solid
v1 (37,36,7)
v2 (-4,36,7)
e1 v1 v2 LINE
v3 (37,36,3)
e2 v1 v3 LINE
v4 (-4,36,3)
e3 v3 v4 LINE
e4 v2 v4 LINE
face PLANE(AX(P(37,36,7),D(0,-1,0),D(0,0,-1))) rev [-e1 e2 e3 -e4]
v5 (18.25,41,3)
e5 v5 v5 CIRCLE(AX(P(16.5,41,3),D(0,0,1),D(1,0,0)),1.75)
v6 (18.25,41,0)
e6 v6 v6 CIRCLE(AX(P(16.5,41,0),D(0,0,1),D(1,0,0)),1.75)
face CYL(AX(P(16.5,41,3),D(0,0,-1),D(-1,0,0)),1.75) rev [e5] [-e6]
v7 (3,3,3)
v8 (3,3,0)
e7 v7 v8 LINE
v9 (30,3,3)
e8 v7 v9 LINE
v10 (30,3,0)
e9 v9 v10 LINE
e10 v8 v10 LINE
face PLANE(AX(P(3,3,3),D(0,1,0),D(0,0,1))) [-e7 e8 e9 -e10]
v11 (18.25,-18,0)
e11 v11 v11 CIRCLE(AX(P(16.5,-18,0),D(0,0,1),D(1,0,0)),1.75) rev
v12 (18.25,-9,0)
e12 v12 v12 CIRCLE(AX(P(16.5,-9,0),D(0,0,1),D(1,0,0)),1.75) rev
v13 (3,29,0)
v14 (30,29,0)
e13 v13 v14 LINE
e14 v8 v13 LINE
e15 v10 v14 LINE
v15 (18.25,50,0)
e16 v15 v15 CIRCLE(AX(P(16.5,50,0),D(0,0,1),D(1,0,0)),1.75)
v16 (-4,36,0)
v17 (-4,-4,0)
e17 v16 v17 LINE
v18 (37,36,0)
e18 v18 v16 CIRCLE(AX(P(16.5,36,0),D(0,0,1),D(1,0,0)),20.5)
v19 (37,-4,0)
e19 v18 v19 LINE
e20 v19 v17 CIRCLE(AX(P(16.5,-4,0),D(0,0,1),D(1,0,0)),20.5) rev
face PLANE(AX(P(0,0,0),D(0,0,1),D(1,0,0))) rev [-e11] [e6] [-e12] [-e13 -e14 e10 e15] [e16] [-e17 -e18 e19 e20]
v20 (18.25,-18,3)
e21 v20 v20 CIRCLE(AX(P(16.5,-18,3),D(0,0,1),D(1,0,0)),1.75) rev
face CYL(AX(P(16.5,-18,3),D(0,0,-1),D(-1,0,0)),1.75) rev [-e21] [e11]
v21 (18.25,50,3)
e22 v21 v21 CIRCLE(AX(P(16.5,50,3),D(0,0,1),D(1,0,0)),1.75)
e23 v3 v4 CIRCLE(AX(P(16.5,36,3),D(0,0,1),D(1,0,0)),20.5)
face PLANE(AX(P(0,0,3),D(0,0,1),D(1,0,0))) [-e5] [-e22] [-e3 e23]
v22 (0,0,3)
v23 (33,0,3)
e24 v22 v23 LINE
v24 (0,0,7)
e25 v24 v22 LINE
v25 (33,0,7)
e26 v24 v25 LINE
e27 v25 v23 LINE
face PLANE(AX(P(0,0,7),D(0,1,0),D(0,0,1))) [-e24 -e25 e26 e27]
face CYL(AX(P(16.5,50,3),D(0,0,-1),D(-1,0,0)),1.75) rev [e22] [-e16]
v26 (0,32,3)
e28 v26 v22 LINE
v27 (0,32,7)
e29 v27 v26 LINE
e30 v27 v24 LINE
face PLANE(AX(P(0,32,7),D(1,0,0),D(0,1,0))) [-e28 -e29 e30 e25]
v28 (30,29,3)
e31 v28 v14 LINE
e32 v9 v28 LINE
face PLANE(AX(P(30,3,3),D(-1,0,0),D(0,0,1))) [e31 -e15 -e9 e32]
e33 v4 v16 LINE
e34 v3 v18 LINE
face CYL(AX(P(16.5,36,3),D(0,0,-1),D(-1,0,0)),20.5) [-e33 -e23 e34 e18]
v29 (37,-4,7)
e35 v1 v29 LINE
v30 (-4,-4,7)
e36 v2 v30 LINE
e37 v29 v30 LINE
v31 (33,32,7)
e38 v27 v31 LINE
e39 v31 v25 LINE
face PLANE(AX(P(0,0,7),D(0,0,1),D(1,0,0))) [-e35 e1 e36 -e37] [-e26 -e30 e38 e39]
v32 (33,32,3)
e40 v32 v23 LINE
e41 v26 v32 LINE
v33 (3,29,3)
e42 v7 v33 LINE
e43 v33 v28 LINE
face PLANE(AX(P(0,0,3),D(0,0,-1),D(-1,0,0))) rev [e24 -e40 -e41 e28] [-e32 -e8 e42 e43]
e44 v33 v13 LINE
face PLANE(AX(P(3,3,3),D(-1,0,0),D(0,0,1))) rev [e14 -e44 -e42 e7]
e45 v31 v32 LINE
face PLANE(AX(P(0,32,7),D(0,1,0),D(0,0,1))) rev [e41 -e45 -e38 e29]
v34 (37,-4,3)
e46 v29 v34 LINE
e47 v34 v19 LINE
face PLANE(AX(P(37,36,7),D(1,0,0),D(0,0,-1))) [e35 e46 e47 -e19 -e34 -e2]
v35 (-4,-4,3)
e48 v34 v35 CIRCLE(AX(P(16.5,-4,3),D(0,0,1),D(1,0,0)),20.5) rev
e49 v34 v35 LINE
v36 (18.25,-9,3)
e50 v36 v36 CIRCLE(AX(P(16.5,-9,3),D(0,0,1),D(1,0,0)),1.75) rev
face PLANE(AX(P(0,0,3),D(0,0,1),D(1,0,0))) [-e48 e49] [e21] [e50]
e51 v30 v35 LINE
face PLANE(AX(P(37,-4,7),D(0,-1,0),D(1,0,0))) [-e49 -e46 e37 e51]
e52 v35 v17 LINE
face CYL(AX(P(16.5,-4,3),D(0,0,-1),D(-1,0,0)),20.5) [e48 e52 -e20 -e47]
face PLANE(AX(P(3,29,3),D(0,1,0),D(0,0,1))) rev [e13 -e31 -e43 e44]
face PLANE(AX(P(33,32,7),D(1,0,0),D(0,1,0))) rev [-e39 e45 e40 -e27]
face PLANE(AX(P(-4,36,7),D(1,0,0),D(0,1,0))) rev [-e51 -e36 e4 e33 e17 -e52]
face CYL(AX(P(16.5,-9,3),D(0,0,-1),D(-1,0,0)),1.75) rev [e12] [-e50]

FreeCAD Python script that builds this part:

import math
import FreeCAD as App
import Part
import Sketcher

V = App.Vector
Q = App.Units.Quantity

doc = App.newDocument("Part")
body = doc.addObject("PartDesign::Body", "Body")

sketch1 = doc.addObject("Sketcher::SketchObject", "Sketch")
body.addObject(sketch1)
sketch1.AttachmentSupport = (doc.XY_Plane, [""])
sketch1.MapMode = "FlatFace"
sketch1.addGeometry(Part.LineSegment(V(-4, 36, 0), V(-4, -4, 0)), False)
sketch1.addGeometry(Part.LineSegment(V(-4, -4, 0), V(37, -4, 0)), False)
sketch1.addGeometry(Part.LineSegment(V(37, -4, 0), V(37, 36, 0)), False)
sketch1.addGeometry(Part.LineSegment(V(37, 36, 0), V(-4, 36, 0)), False)
sketch1.addGeometry(Part.LineSegment(V(33, 0, 0), V(0, 0, 0)), False)
sketch1.addGeometry(Part.LineSegment(V(0, 0, 0), V(0, 32, 0)), False)
sketch1.addGeometry(Part.LineSegment(V(0, 32, 0), V(33, 32, 0)), False)
sketch1.addGeometry(Part.LineSegment(V(33, 32, 0), V(33, 0, 0)), False)
sketch1.addConstraint(Sketcher.Constraint("Coincident", 0, 2, 1, 1))
sketch1.addConstraint(Sketcher.Constraint("Coincident", 1, 2, 2, 1))
sketch1.addConstraint(Sketcher.Constraint("Coincident", 2, 2, 3, 1))
sketch1.addConstraint(Sketcher.Constraint("Coincident", 3, 2, 0, 1))
sketch1.addConstraint(Sketcher.Constraint("Coincident", 4, 2, 5, 1))
sketch1.addConstraint(Sketcher.Constraint("Coincident", 5, 2, 6, 1))
sketch1.addConstraint(Sketcher.Constraint("Coincident", 6, 2, 7, 1))
sketch1.addConstraint(Sketcher.Constraint("Coincident", 7, 2, 4, 1))
sketch1.addConstraint(Sketcher.Constraint("Vertical", 0))
sketch1.addConstraint(Sketcher.Constraint("Horizontal", 1))
sketch1.addConstraint(Sketcher.Constraint("Vertical", 2))
sketch1.addConstraint(Sketcher.Constraint("Horizontal", 3))
sketch1.addConstraint(Sketcher.Constraint("Horizontal", 4))
sketch1.addConstraint(Sketcher.Constraint("Vertical", 5))
sketch1.addConstraint(Sketcher.Constraint("Horizontal", 6))
sketch1.addConstraint(Sketcher.Constraint("Vertical", 7))
sketch1.addConstraint(Sketcher.Constraint("Coincident", 4, 2, -1, 1))
sketch1.addConstraint(Sketcher.Constraint("DistanceX", 1, 1, 1, 2, Q("41 mm")))
sketch1.addConstraint(Sketcher.Constraint("DistanceX", 4, 2, 4, 1, Q("33 mm")))
sketch1.addConstraint(Sketcher.Constraint("DistanceY", 0, 2, 0, 1, Q("40 mm")))
sketch1.addConstraint(Sketcher.Constraint("DistanceY", 5, 1, 5, 2, Q("32 mm")))
sketch1.addConstraint(Sketcher.Constraint("DistanceX", 0, 2, -1, 1, Q("4 mm")))
sketch1.addConstraint(Sketcher.Constraint("DistanceY", 0, 2, -1, 1, Q("4 mm")))
pad1 = doc.addObject("PartDesign::Pad", "Pad")
body.addObject(pad1)
pad1.Profile = sketch1
pad1.Length = 7

sketch2 = doc.addObject("Sketcher::SketchObject", "Sketch001")
body.addObject(sketch2)
sketch2.AttachmentSupport = (doc.XY_Plane, [""])
sketch2.MapMode = "FlatFace"
sketch2.addGeometry(Part.LineSegment(V(0, 32, 0), V(0, 0, 0)), False)
sketch2.addGeometry(Part.LineSegment(V(0, 0, 0), V(33, 0, 0)), False)
sketch2.addGeometry(Part.LineSegment(V(33, 0, 0), V(33, 32, 0)), False)
sketch2.addGeometry(Part.LineSegment(V(33, 32, 0), V(0, 32, 0)), False)
sketch2.addGeometry(Part.LineSegment(V(30, 3, 0), V(3, 3, 0)), False)
sketch2.addGeometry(Part.LineSegment(V(3, 3, 0), V(3, 29, 0)), False)
sketch2.addGeometry(Part.LineSegment(V(3, 29, 0), V(30, 29, 0)), False)
sketch2.addGeometry(Part.LineSegment(V(30, 29, 0), V(30, 3, 0)), False)
sketch2.addConstraint(Sketcher.Constraint("Coincident", 0, 2, 1, 1))
sketch2.addConstraint(Sketcher.Constraint("Coincident", 1, 2, 2, 1))
sketch2.addConstraint(Sketcher.Constraint("Coincident", 2, 2, 3, 1))
sketch2.addConstraint(Sketcher.Constraint("Coincident", 3, 2, 0, 1))
sketch2.addConstraint(Sketcher.Constraint("Coincident", 4, 2, 5, 1))
sketch2.addConstraint(Sketcher.Constraint("Coincident", 5, 2, 6, 1))
sketch2.addConstraint(Sketcher.Constraint("Coincident", 6, 2, 7, 1))
sketch2.addConstraint(Sketcher.Constraint("Coincident", 7, 2, 4, 1))
sketch2.addConstraint(Sketcher.Constraint("Vertical", 0))
sketch2.addConstraint(Sketcher.Constraint("Horizontal", 1))
sketch2.addConstraint(Sketcher.Constraint("Vertical", 2))
sketch2.addConstraint(Sketcher.Constraint("Horizontal", 3))
sketch2.addConstraint(Sketcher.Constraint("Horizontal", 4))
sketch2.addConstraint(Sketcher.Constraint("Vertical", 5))
sketch2.addConstraint(Sketcher.Constraint("Horizontal", 6))
sketch2.addConstraint(Sketcher.Constraint("Vertical", 7))
sketch2.addConstraint(Sketcher.Constraint("Coincident", 0, 2, -1, 1))
sketch2.addConstraint(Sketcher.Constraint("DistanceX", 1, 1, 1, 2, Q("33 mm")))
sketch2.addConstraint(Sketcher.Constraint("DistanceX", 4, 2, 4, 1, Q("27 mm")))
sketch2.addConstraint(Sketcher.Constraint("DistanceY", 0, 2, 0, 1, Q("32 mm")))
sketch2.addConstraint(Sketcher.Constraint("DistanceY", 5, 1, 5, 2, Q("26 mm")))
sketch2.addConstraint(Sketcher.Constraint("DistanceX", -1, 1, 4, 2, Q("3 mm")))
sketch2.addConstraint(Sketcher.Constraint("DistanceY", -1, 1, 4, 2, Q("3 mm")))
pad2 = doc.addObject("PartDesign::Pad", "Pad001")
body.addObject(pad2)
pad2.Profile = sketch2
pad2.Length = 3

sketch3 = doc.addObject("Sketcher::SketchObject", "Sketch002")
body.addObject(sketch3)
sketch3.AttachmentSupport = (doc.XY_Plane, [""])
sketch3.MapMode = "FlatFace"
sketch3.addGeometry(Part.LineSegment(V(37, -4, 0), V(-4, -4, 0)), False)
sketch3.addGeometry(Part.ArcOfCircle(Part.Circle(V(16.5, -4, 0), V(0, 0, 1), 20.5), math.radians(180), math.radians(360)), False)
sketch3.addGeometry(Part.Circle(V(16.5, -18, 0), V(0, 0, 1), 1.8), False)
sketch3.addGeometry(Part.Circle(V(16.5, -9, 0), V(0, 0, 1), 1.8), False)
sketch3.addGeometry(Part.ArcOfCircle(Part.Circle(V(16.5, 36, 0), V(0, 0, 1), 20.5), math.radians(0), math.radians(180)), False)
sketch3.addGeometry(Part.LineSegment(V(-4, 36, 0), V(37, 36, 0)), False)
sketch3.addGeometry(Part.Circle(V(16.5, 41, 0), V(0, 0, 1), 1.8), False)
sketch3.addGeometry(Part.Circle(V(16.5, 50, 0), V(0, 0, 1), 1.8), False)
sketch3.addConstraint(Sketcher.Constraint("Coincident", 0, 1, 1, 2))
sketch3.addConstraint(Sketcher.Constraint("Coincident", 1, 1, 0, 2))
sketch3.addConstraint(Sketcher.Constraint("Coincident", 4, 1, 5, 2))
sketch3.addConstraint(Sketcher.Constraint("Coincident", 5, 1, 4, 2))
sketch3.addConstraint(Sketcher.Constraint("Horizontal", 0))
sketch3.addConstraint(Sketcher.Constraint("Horizontal", 5))
sketch3.addConstraint(Sketcher.Constraint("Equal", 2, 3))
sketch3.addConstraint(Sketcher.Constraint("Equal", 1, 4))
sketch3.addConstraint(Sketcher.Constraint("Equal", 3, 6))
sketch3.addConstraint(Sketcher.Constraint("Equal", 6, 7))
sketch3.addConstraint(Sketcher.Constraint("Horizontal", 1, 3, 0, 1))
sketch3.addConstraint(Sketcher.Constraint("Vertical", 1, 3, 2, 3))
sketch3.addConstraint(Sketcher.Constraint("Vertical", 2, 3, 3, 3))
sketch3.addConstraint(Sketcher.Constraint("Vertical", 3, 3, 4, 3))
sketch3.addConstraint(Sketcher.Constraint("Vertical", 4, 3, 6, 3))
sketch3.addConstraint(Sketcher.Constraint("Vertical", 6, 3, 7, 3))
sketch3.addConstraint(Sketcher.Constraint("Diameter", 2, Q("3.5 mm")))
sketch3.addConstraint(Sketcher.Constraint("Radius", 1, Q("20.5 mm")))
sketch3.addConstraint(Sketcher.Constraint("DistanceY", 1, 3, -1, 1, Q("4 mm")))
sketch3.addConstraint(Sketcher.Constraint("DistanceY", 2, 3, -1, 1, Q("18 mm")))
sketch3.addConstraint(Sketcher.Constraint("DistanceY", 3, 3, -1, 1, Q("9 mm")))
sketch3.addConstraint(Sketcher.Constraint("DistanceY", -1, 1, 4, 3, Q("36 mm")))
sketch3.addConstraint(Sketcher.Constraint("DistanceY", -1, 1, 6, 3, Q("41 mm")))
sketch3.addConstraint(Sketcher.Constraint("DistanceY", -1, 1, 7, 3, Q("50 mm")))
sketch3.addConstraint(Sketcher.Constraint("DistanceX", -1, 1, 0, 1, Q("37 mm")))
sketch3.addConstraint(Sketcher.Constraint("DistanceY", -1, 1, 4, 1, Q("36 mm")))
pad3 = doc.addObject("PartDesign::Pad", "Pad002")
body.addObject(pad3)
pad3.Profile = sketch3
pad3.Length = 3

doc.recompute()
